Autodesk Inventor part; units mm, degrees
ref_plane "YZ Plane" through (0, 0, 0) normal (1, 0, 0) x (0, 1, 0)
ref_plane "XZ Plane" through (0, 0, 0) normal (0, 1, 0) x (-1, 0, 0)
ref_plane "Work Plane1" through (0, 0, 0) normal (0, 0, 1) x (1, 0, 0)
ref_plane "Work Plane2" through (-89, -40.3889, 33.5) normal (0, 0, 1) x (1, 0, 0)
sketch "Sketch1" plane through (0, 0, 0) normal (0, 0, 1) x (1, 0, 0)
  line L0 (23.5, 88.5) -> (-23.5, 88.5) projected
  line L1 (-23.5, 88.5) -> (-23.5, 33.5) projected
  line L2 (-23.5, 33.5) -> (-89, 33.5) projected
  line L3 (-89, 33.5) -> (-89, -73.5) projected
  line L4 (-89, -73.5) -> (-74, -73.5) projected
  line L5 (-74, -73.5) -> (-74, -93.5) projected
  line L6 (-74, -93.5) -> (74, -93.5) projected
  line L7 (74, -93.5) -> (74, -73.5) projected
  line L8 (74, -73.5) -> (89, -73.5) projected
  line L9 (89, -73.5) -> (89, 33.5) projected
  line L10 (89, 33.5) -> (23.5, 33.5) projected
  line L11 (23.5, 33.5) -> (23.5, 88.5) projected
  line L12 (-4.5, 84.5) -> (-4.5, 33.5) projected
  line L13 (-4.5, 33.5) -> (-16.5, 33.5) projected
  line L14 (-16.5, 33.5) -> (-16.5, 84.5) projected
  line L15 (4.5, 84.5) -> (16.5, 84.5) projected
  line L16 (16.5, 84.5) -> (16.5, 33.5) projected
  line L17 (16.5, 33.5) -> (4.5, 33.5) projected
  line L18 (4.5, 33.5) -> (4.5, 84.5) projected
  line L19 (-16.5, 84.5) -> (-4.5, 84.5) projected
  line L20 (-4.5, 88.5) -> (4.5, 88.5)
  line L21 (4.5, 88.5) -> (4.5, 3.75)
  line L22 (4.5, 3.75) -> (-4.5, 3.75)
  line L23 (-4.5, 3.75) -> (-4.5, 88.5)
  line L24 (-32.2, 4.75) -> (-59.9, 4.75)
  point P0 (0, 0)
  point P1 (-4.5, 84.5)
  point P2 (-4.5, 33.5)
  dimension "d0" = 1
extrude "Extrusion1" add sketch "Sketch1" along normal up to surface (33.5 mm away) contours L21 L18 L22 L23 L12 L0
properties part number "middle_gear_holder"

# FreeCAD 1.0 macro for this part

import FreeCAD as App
import Part
import Sketcher

V = App.Vector
Q = App.Units.Quantity

doc = App.newDocument("Part")
params = doc.addObject("Spreadsheet::Sheet", "Params")
for row, (alias, value) in enumerate([
    ("sketch1_width", "9 mm"),
    ("sketch1_height", "84.75 mm"),
    ("pad1_length", "33.5 mm"),
], start=1):
    params.set(f"A{row}", alias)
    params.set(f"B{row}", "=" + value)
    params.setAlias(f"B{row}", alias)

body = doc.addObject("PartDesign::Body", "Body")

# Sketch on XY plane
sketch1 = body.newObject("Sketcher::SketchObject", "Sketch")
sketch1.AttachmentSupport = (doc.getObject("XY_Plane"), [""])
sketch1.MapMode = "FlatFace"
sketch1.addGeometry([
    Part.LineSegment(V(4, 4, 0), V(4, 88, 0)),
    Part.LineSegment(V(4, 88, 0), V(-4, 88, 0)),
    Part.LineSegment(V(-4, 88, 0), V(-4, 4, 0)),
    Part.LineSegment(V(-4, 4, 0), V(4, 4, 0)),
], False)
sketch1.addConstraint([
    Sketcher.Constraint("Coincident", 0, 2, 1, 1),
    Sketcher.Constraint("Coincident", 1, 2, 2, 1),
    Sketcher.Constraint("Coincident", 2, 2, 3, 1),
    Sketcher.Constraint("Coincident", 3, 2, 0, 1),
    Sketcher.Constraint("Vertical", 0),
    Sketcher.Constraint("Horizontal", 1),
    Sketcher.Constraint("Vertical", 2),
    Sketcher.Constraint("Horizontal", 3),
    Sketcher.Constraint("DistanceX", 1, 2, 1, 1, Q("9 mm")),
    Sketcher.Constraint("DistanceY", 0, 1, 0, 2, Q("84.75 mm")),
    Sketcher.Constraint("DistanceX", -1, 1, 0, 2, Q("4.5 mm")),
    Sketcher.Constraint("DistanceY", -1, 1, 0, 2, Q("88.5 mm")),
])
sketch1.setExpression("Constraints[8]", "Params.sketch1_width")
sketch1.setExpression("Constraints[9]", "Params.sketch1_height")
pad1 = body.newObject("PartDesign::Pad", "Pad")
pad1.Profile = sketch1
pad1.setExpression("Length", "Params.pad1_length")

doc.recompute()
